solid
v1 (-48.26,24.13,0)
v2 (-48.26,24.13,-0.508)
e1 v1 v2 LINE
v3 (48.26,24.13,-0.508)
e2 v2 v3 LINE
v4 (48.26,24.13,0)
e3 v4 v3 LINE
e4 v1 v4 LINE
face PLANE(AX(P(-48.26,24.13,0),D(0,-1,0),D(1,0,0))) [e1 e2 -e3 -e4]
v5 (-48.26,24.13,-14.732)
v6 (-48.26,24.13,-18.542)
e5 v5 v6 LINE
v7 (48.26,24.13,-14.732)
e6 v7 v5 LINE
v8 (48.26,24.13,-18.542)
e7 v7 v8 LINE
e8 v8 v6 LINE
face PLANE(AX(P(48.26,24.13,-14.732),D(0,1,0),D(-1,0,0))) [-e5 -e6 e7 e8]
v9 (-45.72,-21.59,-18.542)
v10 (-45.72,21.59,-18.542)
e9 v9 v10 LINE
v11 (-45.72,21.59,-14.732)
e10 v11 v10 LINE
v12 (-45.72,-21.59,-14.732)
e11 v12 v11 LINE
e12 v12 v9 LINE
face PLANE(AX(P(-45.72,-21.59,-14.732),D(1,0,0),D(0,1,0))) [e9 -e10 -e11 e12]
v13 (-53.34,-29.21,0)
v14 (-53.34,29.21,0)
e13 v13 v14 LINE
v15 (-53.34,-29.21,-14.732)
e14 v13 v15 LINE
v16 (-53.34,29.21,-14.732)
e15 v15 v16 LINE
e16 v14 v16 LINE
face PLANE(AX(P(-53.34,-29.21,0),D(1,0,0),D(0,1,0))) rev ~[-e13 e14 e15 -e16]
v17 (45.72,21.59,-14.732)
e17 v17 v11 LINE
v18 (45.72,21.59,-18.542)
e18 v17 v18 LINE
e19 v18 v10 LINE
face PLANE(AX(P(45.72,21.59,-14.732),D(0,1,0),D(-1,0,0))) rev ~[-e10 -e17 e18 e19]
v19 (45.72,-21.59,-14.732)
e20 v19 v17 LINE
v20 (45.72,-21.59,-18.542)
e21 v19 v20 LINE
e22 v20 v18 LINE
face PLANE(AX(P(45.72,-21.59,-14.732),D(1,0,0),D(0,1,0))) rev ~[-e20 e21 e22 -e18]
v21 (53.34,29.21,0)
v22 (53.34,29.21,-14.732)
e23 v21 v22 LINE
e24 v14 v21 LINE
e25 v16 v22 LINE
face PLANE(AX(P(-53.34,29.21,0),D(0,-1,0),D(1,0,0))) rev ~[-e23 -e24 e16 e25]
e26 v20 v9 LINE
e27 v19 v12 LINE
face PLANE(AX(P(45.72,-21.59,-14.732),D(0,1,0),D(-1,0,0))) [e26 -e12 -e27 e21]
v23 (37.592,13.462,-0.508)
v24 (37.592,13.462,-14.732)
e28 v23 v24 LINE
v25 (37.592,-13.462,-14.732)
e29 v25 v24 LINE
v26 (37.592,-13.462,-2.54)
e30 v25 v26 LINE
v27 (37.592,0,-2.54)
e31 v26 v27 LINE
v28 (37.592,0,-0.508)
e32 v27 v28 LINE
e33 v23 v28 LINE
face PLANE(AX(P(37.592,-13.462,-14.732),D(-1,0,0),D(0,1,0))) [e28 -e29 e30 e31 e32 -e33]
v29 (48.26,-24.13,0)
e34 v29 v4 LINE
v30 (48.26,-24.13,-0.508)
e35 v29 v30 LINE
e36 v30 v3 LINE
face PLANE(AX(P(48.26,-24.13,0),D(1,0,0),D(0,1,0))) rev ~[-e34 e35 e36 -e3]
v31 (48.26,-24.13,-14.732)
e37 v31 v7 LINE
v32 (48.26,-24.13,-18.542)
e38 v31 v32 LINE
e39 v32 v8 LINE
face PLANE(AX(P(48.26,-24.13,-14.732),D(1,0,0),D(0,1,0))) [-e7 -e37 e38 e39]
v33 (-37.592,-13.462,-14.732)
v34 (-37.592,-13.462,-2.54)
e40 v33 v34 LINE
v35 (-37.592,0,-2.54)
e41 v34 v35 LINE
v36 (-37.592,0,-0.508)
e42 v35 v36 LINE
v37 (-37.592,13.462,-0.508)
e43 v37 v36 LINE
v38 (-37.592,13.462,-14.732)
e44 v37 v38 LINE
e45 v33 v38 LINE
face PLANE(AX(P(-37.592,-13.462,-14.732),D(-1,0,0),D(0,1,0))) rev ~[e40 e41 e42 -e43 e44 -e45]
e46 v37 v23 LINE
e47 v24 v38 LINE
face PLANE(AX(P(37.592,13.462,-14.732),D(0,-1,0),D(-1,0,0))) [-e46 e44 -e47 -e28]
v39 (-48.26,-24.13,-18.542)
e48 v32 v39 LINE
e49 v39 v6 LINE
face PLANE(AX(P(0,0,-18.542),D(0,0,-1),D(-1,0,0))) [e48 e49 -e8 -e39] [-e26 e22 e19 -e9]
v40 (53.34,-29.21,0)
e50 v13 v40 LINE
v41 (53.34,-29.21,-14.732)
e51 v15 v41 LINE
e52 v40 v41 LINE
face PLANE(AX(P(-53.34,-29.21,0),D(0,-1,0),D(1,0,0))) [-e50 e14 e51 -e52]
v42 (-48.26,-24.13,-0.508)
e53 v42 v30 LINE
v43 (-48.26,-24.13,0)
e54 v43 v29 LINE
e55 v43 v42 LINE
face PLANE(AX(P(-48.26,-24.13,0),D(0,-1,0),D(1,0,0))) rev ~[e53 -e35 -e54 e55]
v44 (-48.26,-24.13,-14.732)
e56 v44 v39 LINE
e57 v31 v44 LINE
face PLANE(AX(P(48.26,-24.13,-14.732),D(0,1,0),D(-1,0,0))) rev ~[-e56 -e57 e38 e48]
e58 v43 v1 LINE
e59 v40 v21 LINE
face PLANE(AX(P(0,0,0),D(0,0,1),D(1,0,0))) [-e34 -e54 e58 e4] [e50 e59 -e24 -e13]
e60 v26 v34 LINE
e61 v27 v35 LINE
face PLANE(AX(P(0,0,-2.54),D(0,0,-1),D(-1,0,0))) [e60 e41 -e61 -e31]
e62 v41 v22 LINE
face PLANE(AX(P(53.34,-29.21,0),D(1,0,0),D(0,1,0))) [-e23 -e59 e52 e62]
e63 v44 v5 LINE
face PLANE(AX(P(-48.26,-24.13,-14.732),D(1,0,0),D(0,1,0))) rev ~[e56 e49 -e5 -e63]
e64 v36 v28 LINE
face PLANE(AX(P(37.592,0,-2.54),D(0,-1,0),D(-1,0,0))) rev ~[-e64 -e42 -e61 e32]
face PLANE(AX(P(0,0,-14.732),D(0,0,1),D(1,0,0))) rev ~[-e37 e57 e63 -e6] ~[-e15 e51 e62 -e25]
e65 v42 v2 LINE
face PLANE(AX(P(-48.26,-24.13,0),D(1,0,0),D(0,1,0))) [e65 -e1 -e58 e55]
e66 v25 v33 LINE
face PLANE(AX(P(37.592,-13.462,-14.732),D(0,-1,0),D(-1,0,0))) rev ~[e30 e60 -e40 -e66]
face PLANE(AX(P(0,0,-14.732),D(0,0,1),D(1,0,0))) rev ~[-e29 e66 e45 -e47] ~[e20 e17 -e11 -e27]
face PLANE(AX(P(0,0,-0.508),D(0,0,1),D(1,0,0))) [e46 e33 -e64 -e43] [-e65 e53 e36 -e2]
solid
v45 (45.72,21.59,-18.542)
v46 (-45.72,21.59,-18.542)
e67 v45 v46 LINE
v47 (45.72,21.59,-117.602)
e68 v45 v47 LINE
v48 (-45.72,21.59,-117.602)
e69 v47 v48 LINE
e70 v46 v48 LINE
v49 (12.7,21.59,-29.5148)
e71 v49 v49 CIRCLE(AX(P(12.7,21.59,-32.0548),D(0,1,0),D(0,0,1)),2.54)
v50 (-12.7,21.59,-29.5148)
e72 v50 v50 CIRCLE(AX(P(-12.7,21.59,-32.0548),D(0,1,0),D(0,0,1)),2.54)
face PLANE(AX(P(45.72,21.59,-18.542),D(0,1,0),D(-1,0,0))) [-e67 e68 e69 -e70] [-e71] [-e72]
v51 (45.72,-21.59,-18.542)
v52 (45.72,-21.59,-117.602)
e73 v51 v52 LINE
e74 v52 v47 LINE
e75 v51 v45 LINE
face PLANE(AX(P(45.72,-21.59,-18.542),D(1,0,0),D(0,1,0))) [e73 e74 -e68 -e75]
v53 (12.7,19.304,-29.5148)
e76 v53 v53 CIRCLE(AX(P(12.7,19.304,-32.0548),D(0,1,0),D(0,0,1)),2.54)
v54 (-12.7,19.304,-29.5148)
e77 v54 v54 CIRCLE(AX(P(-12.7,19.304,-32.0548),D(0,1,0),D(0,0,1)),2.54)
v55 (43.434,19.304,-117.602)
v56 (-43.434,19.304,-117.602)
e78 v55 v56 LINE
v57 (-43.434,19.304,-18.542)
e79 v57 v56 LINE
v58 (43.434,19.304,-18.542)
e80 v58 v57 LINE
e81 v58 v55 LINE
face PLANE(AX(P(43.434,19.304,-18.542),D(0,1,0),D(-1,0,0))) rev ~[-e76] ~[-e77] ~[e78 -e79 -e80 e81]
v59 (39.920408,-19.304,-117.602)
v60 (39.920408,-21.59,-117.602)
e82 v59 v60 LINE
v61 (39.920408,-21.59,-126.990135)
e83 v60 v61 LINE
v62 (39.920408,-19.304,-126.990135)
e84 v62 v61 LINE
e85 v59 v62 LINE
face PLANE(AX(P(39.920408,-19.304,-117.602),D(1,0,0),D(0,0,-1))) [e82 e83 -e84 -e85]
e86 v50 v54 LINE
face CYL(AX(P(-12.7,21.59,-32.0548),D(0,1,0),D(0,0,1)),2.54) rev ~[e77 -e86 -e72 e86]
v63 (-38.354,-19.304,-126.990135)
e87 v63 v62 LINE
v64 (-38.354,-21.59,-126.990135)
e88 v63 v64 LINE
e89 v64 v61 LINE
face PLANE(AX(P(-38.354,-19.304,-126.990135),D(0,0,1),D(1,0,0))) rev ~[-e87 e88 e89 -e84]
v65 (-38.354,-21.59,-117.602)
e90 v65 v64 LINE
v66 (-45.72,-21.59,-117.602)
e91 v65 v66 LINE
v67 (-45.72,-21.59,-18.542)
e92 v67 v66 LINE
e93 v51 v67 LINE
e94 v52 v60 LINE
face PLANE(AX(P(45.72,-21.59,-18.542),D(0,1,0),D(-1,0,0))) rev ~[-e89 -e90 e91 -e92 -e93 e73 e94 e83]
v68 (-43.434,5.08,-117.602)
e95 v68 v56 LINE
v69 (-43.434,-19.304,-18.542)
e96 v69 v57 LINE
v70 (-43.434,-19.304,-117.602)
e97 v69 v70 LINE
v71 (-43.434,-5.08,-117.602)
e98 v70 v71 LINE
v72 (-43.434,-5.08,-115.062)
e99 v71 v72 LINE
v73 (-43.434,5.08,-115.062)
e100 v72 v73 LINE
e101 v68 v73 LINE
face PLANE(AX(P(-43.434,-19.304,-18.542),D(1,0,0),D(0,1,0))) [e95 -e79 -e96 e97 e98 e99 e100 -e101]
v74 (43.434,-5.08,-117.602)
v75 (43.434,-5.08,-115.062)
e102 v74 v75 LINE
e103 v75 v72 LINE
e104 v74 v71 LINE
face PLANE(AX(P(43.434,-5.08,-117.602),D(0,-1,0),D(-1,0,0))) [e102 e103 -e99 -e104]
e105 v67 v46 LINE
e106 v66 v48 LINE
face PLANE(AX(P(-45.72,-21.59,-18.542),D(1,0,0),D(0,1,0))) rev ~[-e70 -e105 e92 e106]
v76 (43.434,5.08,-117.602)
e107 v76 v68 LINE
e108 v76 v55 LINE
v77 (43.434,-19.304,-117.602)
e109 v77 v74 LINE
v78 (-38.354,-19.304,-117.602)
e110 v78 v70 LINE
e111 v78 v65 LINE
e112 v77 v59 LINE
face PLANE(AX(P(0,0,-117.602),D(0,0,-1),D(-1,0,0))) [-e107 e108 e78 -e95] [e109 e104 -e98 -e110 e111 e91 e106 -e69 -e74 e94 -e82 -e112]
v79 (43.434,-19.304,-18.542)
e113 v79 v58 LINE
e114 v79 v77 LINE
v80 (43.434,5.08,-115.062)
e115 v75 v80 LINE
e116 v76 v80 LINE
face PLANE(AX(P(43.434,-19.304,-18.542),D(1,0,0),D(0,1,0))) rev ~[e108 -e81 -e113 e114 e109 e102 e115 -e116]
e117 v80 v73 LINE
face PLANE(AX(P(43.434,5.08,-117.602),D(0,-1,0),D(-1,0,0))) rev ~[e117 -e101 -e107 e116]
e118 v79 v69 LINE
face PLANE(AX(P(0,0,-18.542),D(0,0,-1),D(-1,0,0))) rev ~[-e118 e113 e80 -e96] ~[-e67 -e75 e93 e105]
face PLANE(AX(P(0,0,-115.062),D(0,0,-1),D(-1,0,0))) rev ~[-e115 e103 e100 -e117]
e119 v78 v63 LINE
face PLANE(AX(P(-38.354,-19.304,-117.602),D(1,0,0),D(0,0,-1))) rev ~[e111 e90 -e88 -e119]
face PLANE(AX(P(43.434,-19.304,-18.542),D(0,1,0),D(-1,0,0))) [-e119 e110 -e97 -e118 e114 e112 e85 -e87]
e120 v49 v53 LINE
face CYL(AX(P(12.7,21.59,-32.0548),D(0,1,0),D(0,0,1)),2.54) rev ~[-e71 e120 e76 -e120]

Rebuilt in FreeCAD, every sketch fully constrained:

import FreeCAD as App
import Part
import Sketcher

V = App.Vector
Q = App.Units.Quantity

doc = App.newDocument("Part")
body = doc.addObject("PartDesign::Body", "Body")

# Sketch on XY plane
sketch1 = body.newObject("Sketcher::SketchObject", "Sketch")
sketch1.AttachmentSupport = (doc.getObject("XY_Plane"), [""])
sketch1.MapMode = "FlatFace"
sketch1.addGeometry([
    Part.LineSegment(V(-53, 29, 0), V(-53, -29, 0)),
    Part.LineSegment(V(-53, -29, 0), V(53, -29, 0)),
    Part.LineSegment(V(53, -29, 0), V(53, 29, 0)),
    Part.LineSegment(V(53, 29, 0), V(-53, 29, 0)),
], False)
sketch1.addConstraint([
    Sketcher.Constraint("Coincident", 0, 2, 1, 1),
    Sketcher.Constraint("Coincident", 1, 2, 2, 1),
    Sketcher.Constraint("Coincident", 2, 2, 3, 1),
    Sketcher.Constraint("Coincident", 3, 2, 0, 1),
    Sketcher.Constraint("Vertical", 0),
    Sketcher.Constraint("Horizontal", 1),
    Sketcher.Constraint("Vertical", 2),
    Sketcher.Constraint("Horizontal", 3),
    Sketcher.Constraint("Symmetric", 0, 2, 2, 2, -1, 1),
    Sketcher.Constraint("DistanceX", 1, 1, 1, 2, Q("4.2 in")),
    Sketcher.Constraint("DistanceY", 0, 2, 0, 1, Q("2.3 in")),
])
pad1 = body.newObject("PartDesign::Pad", "Pad")
pad1.Profile = sketch1
pad1.Length = Q("0.58 in")
pad1.Reversed = True

# Sketch on XY plane
sketch2 = body.newObject("Sketcher::SketchObject", "Sketch001")
sketch2.AttachmentSupport = (doc.getObject("XY_Plane"), [""])
sketch2.MapMode = "FlatFace"
sketch2.addGeometry([
    Part.LineSegment(V(-48, 24, 0), V(-48, -24, 0)),
    Part.LineSegment(V(-48, -24, 0), V(48, -24, 0)),
    Part.LineSegment(V(48, -24, 0), V(48, 24, 0)),
    Part.LineSegment(V(48, 24, 0), V(-48, 24, 0)),
], False)
sketch2.addConstraint([
    Sketcher.Constraint("Coincident", 0, 2, 1, 1),
    Sketcher.Constraint("Coincident", 1, 2, 2, 1),
    Sketcher.Constraint("Coincident", 2, 2, 3, 1),
    Sketcher.Constraint("Coincident", 3, 2, 0, 1),
    Sketcher.Constraint("Vertical", 0),
    Sketcher.Constraint("Horizontal", 1),
    Sketcher.Constraint("Vertical", 2),
    Sketcher.Constraint("Horizontal", 3),
    Sketcher.Constraint("Symmetric", 0, 2, 2, 2, -1, 1),
    Sketcher.Constraint("DistanceX", 1, 1, 1, 2, Q("3.8 in")),
    Sketcher.Constraint("DistanceY", 0, 2, 0, 1, Q("1.9 in")),
])
pocket1 = body.newObject("PartDesign::Pocket", "Pocket")
pocket1.Profile = sketch2
pocket1.Length = Q("0.02 in")

# Sketch on XY plane
sketch3 = body.newObject("Sketcher::SketchObject", "Sketch002")
sketch3.AttachmentSupport = (doc.getObject("XY_Plane"), [""])
sketch3.MapMode = "FlatFace"
sketch3.AttachmentOffset = App.Placement(V(0, 0, -0.58 * 25.4), App.Rotation())
sketch3.addGeometry([
    Part.LineSegment(V(38, 13, 0), V(38, -13, 0)),
    Part.LineSegment(V(38, -13, 0), V(-38, -13, 0)),
    Part.LineSegment(V(-38, -13, 0), V(-38, 13, 0)),
    Part.LineSegment(V(-38, 13, 0), V(38, 13, 0)),
], False)
sketch3.addConstraint([
    Sketcher.Constraint("Coincident", 0, 2, 1, 1),
    Sketcher.Constraint("Coincident", 1, 2, 2, 1),
    Sketcher.Constraint("Coincident", 2, 2, 3, 1),
    Sketcher.Constraint("Coincident", 3, 2, 0, 1),
    Sketcher.Constraint("Vertical", 0),
    Sketcher.Constraint("Horizontal", 1),
    Sketcher.Constraint("Vertical", 2),
    Sketcher.Constraint("Horizontal", 3),
    Sketcher.Constraint("Symmetric", 0, 2, 2, 2, -1, 1),
    Sketcher.Constraint("DistanceX", 1, 2, 1, 1, Q("2.96 in")),
    Sketcher.Constraint("DistanceY", 0, 2, 0, 1, Q("1.06 in")),
])
pocket2 = body.newObject("PartDesign::Pocket", "Pocket001")
pocket2.Profile = sketch3
pocket2.Length = Q("0.48 in")
pocket2.Reversed = True

# Sketch on XY plane
sketch4 = body.newObject("Sketcher::SketchObject", "Sketch003")
sketch4.AttachmentSupport = (doc.getObject("XY_Plane"), [""])
sketch4.MapMode = "FlatFace"
sketch4.AttachmentOffset = App.Placement(V(0, 0, -0.1 * 25.4), App.Rotation())
sketch4.addGeometry([
    Part.LineSegment(V(38, 13, 0), V(38, 0, 0)),
    Part.LineSegment(V(38, 0, 0), V(-38, 0, 0)),
    Part.LineSegment(V(-38, 0, 0), V(-38, 13, 0)),
    Part.LineSegment(V(-38, 13, 0), V(38, 13, 0)),
], False)
sketch4.addConstraint([
    Sketcher.Constraint("Coincident", 0, 2, 1, 1),
    Sketcher.Constraint("Coincident", 1, 2, 2, 1),
    Sketcher.Constraint("Coincident", 2, 2, 3, 1),
    Sketcher.Constraint("Coincident", 3, 2, 0, 1),
    Sketcher.Constraint("Vertical", 0),
    Sketcher.Constraint("Horizontal", 1),
    Sketcher.Constraint("Vertical", 2),
    Sketcher.Constraint("Horizontal", 3),
    Sketcher.Constraint("Symmetric", 0, 2, 1, 2, -1, 1),
    Sketcher.Constraint("DistanceX", 1, 2, 1, 1, Q("2.96 in")),
    Sketcher.Constraint("DistanceY", 0, 2, 0, 1, Q("0.53 in")),
])
pocket3 = body.newObject("PartDesign::Pocket", "Pocket002")
pocket3.Profile = sketch4
pocket3.Length = Q("0.48 in")
pocket3.Reversed = True

# Sketch on XY plane
sketch5 = body.newObject("Sketcher::SketchObject", "Sketch004")
sketch5.AttachmentSupport = (doc.getObject("XY_Plane"), [""])
sketch5.MapMode = "FlatFace"
sketch5.AttachmentOffset = App.Placement(V(0, 0, -0.58 * 25.4), App.Rotation())
sketch5.addGeometry([
    Part.LineSegment(V(48, 24, 0), V(48, -24, 0)),  # 0
    Part.LineSegment(V(48, -24, 0), V(-48, -24, 0)),  # 1
    Part.LineSegment(V(-48, -24, 0), V(-48, 24, 0)),  # 2
    Part.LineSegment(V(-48, 24, 0), V(48, 24, 0)),  # 3
    Part.LineSegment(V(-46, -22, 0), V(46, -22, 0)),  # 4
    Part.LineSegment(V(46, -22, 0), V(46, 22, 0)),  # 5
    Part.LineSegment(V(46, 22, 0), V(-46, 22, 0)),  # 6
    Part.LineSegment(V(-46, 22, 0), V(-46, -22, 0)),  # 7
], False)
sketch5.addConstraint([
    Sketcher.Constraint("Coincident", 0, 2, 1, 1),
    Sketcher.Constraint("Coincident", 1, 2, 2, 1),
    Sketcher.Constraint("Coincident", 2, 2, 3, 1),
    Sketcher.Constraint("Coincident", 3, 2, 0, 1),
    Sketcher.Constraint("Coincident", 4, 2, 5, 1),
    Sketcher.Constraint("Coincident", 5, 2, 6, 1),
    Sketcher.Constraint("Coincident", 6, 2, 7, 1),
    Sketcher.Constraint("Coincident", 7, 2, 4, 1),
    Sketcher.Constraint("Vertical", 0),
    Sketcher.Constraint("Horizontal", 1),
    Sketcher.Constraint("Vertical", 2),
    Sketcher.Constraint("Horizontal", 3),
    Sketcher.Constraint("Horizontal", 4),
    Sketcher.Constraint("Vertical", 5),
    Sketcher.Constraint("Horizontal", 6),
    Sketcher.Constraint("Vertical", 7),
    Sketcher.Constraint("Symmetric", 0, 2, 2, 2, -1, 1),
    Sketcher.Constraint("Symmetric", 4, 2, 6, 2, -1, 1),
    Sketcher.Constraint("DistanceX", 1, 2, 1, 1, Q("3.8 in")),
    Sketcher.Constraint("DistanceX", 4, 1, 4, 2, Q("3.6 in")),
    Sketcher.Constraint("DistanceY", 0, 2, 0, 1, Q("1.9 in")),
    Sketcher.Constraint("DistanceY", 5, 1, 5, 2, Q("1.7 in")),
])
pad2 = body.newObject("PartDesign::Pad", "Pad001")
pad2.Profile = sketch5
pad2.Length = Q("0.15 in")
pad2.Reversed = True
body2 = doc.addObject("PartDesign::Body", "Body001")

# Sketch on XY plane
sketch6 = body2.newObject("Sketcher::SketchObject", "Sketch005")
sketch6.AttachmentSupport = (doc.getObject("XY_Plane001"), [""])
sketch6.MapMode = "FlatFace"
sketch6.AttachmentOffset = App.Placement(V(0, 0, -0.73 * 25.4), App.Rotation())
sketch6.addGeometry([
    Part.LineSegment(V(46, 22, 0), V(46, -22, 0)),  # 0
    Part.LineSegment(V(46, -22, 0), V(-46, -22, 0)),  # 1
    Part.LineSegment(V(-46, -22, 0), V(-46, 22, 0)),  # 2
    Part.LineSegment(V(-46, 22, 0), V(46, 22, 0)),  # 3
    Part.LineSegment(V(-43, -19, 0), V(43, -19, 0)),  # 4
    Part.LineSegment(V(43, -19, 0), V(43, 19, 0)),  # 5
    Part.LineSegment(V(43, 19, 0), V(-43, 19, 0)),  # 6
    Part.LineSegment(V(-43, 19, 0), V(-43, -19, 0)),  # 7
], False)
sketch6.addConstraint([
    Sketcher.Constraint("Coincident", 0, 2, 1, 1),
    Sketcher.Constraint("Coincident", 1, 2, 2, 1),
    Sketcher.Constraint("Coincident", 2, 2, 3, 1),
    Sketcher.Constraint("Coincident", 3, 2, 0, 1),
    Sketcher.Constraint("Coincident", 4, 2, 5, 1),
    Sketcher.Constraint("Coincident", 5, 2, 6, 1),
    Sketcher.Constraint("Coincident", 6, 2, 7, 1),
    Sketcher.Constraint("Coincident", 7, 2, 4, 1),
    Sketcher.Constraint("Vertical", 0),
    Sketcher.Constraint("Horizontal", 1),
    Sketcher.Constraint("Vertical", 2),
    Sketcher.Constraint("Horizontal", 3),
    Sketcher.Constraint("Horizontal", 4),
    Sketcher.Constraint("Vertical", 5),
    Sketcher.Constraint("Horizontal", 6),
    Sketcher.Constraint("Vertical", 7),
    Sketcher.Constraint("Symmetric", 0, 2, 2, 2, -1, 1),
    Sketcher.Constraint("Symmetric", 4, 2, 6, 2, -1, 1),
    Sketcher.Constraint("DistanceX", 1, 2, 1, 1, Q("3.6 in")),
    Sketcher.Constraint("DistanceY", 0, 2, 0, 1, Q("1.7 in")),
    Sketcher.Constraint("DistanceX", 4, 1, 4, 2, Q("3.42 in")),
    Sketcher.Constraint("DistanceY", 5, 1, 5, 2, Q("1.52 in")),
])
pad3 = body2.newObject("PartDesign::Pad", "Pad002")
pad3.Profile = sketch6
pad3.Length = Q("3.9 in")
pad3.Reversed = True

# Sketch on XY plane
sketch7 = body2.newObject("Sketcher::SketchObject", "Sketch006")
sketch7.AttachmentSupport = (doc.getObject("XY_Plane001"), [""])
sketch7.MapMode = "FlatFace"
sketch7.AttachmentOffset = App.Placement(V(0, 0, -4.63 * 25.4), App.Rotation())
sketch7.addGeometry([
    Part.LineSegment(V(43, 5, 0), V(43, -5, 0)),
    Part.LineSegment(V(43, -5, 0), V(-43, -5, 0)),
    Part.LineSegment(V(-43, -5, 0), V(-43, 5, 0)),
    Part.LineSegment(V(-43, 5, 0), V(43, 5, 0)),
], False)
sketch7.addConstraint([
    Sketcher.Constraint("Coincident", 0, 2, 1, 1),
    Sketcher.Constraint("Coincident", 1, 2, 2, 1),
    Sketcher.Constraint("Coincident", 2, 2, 3, 1),
    Sketcher.Constraint("Coincident", 3, 2, 0, 1),
    Sketcher.Constraint("Vertical", 0),
    Sketcher.Constraint("Horizontal", 1),
    Sketcher.Constraint("Vertical", 2),
    Sketcher.Constraint("Horizontal", 3),
    Sketcher.Constraint("Symmetric", 0, 2, 2, 2, -1, 1),
    Sketcher.Constraint("DistanceY", 0, 2, 0, 1, Q("0.4 in")),
    Sketcher.Constraint("DistanceX", 1, 2, 1, 1, Q("3.42 in")),
])
pad4 = body2.newObject("PartDesign::Pad", "Pad003")
pad4.Profile = sketch7
pad4.Length = Q("0.1 in")

# Sketch on XZ plane
sketch8 = body2.newObject("Sketcher::SketchObject", "Sketch007")
sketch8.AttachmentSupport = (doc.getObject("XZ_Plane001"), [""])
sketch8.MapMode = "FlatFace"
sketch8.AttachmentOffset = App.Placement(V(0, 0, 0.76 * 25.4), App.Rotation())
sketch8.addGeometry([
    Part.LineSegment(V(-38, -127, 0), V(-38, -118, 0)),
    Part.LineSegment(V(-38, -118, 0), V(40, -118, 0)),
    Part.LineSegment(V(40, -118, 0), V(40, -127, 0)),
    Part.LineSegment(V(40, -127, 0), V(-38, -127, 0)),
], False)
sketch8.addConstraint([
    Sketcher.Constraint("Coincident", 0, 2, 1, 1),
    Sketcher.Constraint("Coincident", 1, 2, 2, 1),
    Sketcher.Constraint("Coincident", 2, 2, 3, 1),
    Sketcher.Constraint("Coincident", 3, 2, 0, 1),
    Sketcher.Constraint("Vertical", 0),
    Sketcher.Constraint("Horizontal", 1),
    Sketcher.Constraint("Vertical", 2),
    Sketcher.Constraint("Horizontal", 3),
    Sketcher.Constraint("DistanceX", 0, 2, -1, 1, Q("1.51 in")),
    Sketcher.Constraint("DistanceY", 0, 2, -1, 1, Q("4.63 in")),
    Sketcher.Constraint("DistanceX", 1, 1, 1, 2, Q("78.274408 mm")),
    Sketcher.Constraint("DistanceY", 0, 1, 0, 2, Q("9.388135 mm")),
])
pad5 = body2.newObject("PartDesign::Pad", "Pad004")
pad5.Profile = sketch8
pad5.Length = Q("0.09 in")

# Sketch on XZ plane
sketch9 = body2.newObject("Sketcher::SketchObject", "Sketch008")
sketch9.AttachmentSupport = (doc.getObject("XZ_Plane001"), [""])
sketch9.MapMode = "FlatFace"
sketch9.AttachmentOffset = App.Placement(V(0, 0, -0.85 * 25.4), App.Rotation())
sketch9.addGeometry([
    Part.Circle(V(12.7, -32.1, 0), V(0, 0, 1), 2.5),
    Part.Circle(V(-12.7, -32.1, 0), V(0, 0, 1), 2.5),
], False)
sketch9.addConstraint([
    Sketcher.Constraint("Equal", 0, 1),
    Sketcher.Constraint("Symmetric", 0, 3, 1, 3, -2),
    Sketcher.Constraint("Diameter", 0, Q("0.2 in")),
    Sketcher.Constraint("DistanceX", 1, 3, 0, 3, Q("1 in")),
    Sketcher.Constraint("DistanceY", 0, 3, -1, 1, Q("1.262 in")),
])
pocket4 = body2.newObject("PartDesign::Pocket", "Pocket003")
pocket4.Profile = sketch9
pocket4.Length = Q("0.09 in")
pocket4.Reversed = True

doc.recompute()
